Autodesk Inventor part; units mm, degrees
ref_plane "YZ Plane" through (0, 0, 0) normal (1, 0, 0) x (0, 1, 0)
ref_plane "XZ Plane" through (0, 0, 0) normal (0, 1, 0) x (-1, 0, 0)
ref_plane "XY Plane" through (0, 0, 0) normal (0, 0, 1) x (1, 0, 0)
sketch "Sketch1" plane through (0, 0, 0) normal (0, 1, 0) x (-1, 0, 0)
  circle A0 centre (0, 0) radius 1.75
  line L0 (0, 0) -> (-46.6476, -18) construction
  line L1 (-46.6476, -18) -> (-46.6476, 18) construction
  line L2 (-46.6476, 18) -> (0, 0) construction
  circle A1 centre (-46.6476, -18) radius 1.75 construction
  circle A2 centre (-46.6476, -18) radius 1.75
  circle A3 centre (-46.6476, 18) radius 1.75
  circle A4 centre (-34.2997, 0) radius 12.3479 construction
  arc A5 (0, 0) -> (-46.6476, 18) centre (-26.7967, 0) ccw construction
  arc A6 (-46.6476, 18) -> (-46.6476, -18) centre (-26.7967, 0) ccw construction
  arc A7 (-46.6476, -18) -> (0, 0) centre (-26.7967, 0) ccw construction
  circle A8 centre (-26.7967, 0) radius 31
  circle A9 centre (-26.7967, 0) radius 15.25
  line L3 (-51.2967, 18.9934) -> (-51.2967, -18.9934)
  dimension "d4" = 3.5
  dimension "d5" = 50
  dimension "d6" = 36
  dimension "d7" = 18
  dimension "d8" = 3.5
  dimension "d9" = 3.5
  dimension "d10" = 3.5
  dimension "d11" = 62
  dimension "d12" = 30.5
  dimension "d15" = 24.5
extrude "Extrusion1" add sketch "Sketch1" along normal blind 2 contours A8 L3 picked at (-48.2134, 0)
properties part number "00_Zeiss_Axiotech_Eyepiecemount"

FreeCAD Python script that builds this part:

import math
import FreeCAD as App
import Part
import Sketcher
Q = App.Units.Quantity

doc = App.newDocument("Part")
body = doc.addObject("PartDesign::Body", "Body")

# Sketch on XZ plane
sketch1 = body.newObject("Sketcher::SketchObject", "Sketch")
sketch1.AttachmentSupport = (doc.getObject("XZ_Plane"), [""])
sketch1.MapMode = "FlatFace"
sketch1.addGeometry([
    Part.ArcOfCircle(Part.Circle(App.Vector(26.7967, 0, 0), App.Vector(0, 0, 1), 31), math.radians(37.784304), math.radians(322.215696)),  # 0
    Part.LineSegment(App.Vector(51.2967, -18.9934, 0), App.Vector(51.2967, 18.9934, 0)),  # 1
    Part.Circle(App.Vector(46.6476, -18, 0), App.Vector(0, 0, 1), 1.75),  # 2
    Part.Circle(App.Vector(46.6476, 18, 0), App.Vector(0, 0, 1), 1.75),  # 3
    Part.Circle(App.Vector(26.7967, 0, 0), App.Vector(0, 0, 1), 15.25),  # 4
    Part.Circle(App.Vector(0, 0, 0), App.Vector(0, 0, 1), 1.75),  # 5
], False)
sketch1.addConstraint([
    Sketcher.Constraint("Coincident", 0, 1, 1, 2),
    Sketcher.Constraint("Coincident", 1, 1, 0, 2),
    Sketcher.Constraint("Vertical", 1),
    Sketcher.Constraint("Coincident", 5, 3, -1, 1),
    Sketcher.Constraint("Coincident", 4, 3, 0, 3),
    Sketcher.Constraint("Equal", 2, 3),
    Sketcher.Constraint("Equal", 3, 5),
    Sketcher.Constraint("Symmetric", 2, 3, 3, 3, -1),
    Sketcher.Constraint("PointOnObject", 0, 3, -1),
    Sketcher.Constraint("Radius", 0, Q("31 mm")),
    Sketcher.Constraint("Diameter", 2, Q("3.5 mm")),
    Sketcher.Constraint("Diameter", 4, Q("30.5 mm")),
    Sketcher.Constraint("DistanceY", 2, 3, -1, 1, Q("18 mm")),
    Sketcher.Constraint("DistanceX", 0, 3, 0, 1, Q("24.5 mm")),
    Sketcher.Constraint("DistanceX", 0, 3, 2, 3, Q("19.851 mm")),
    Sketcher.Constraint("DistanceX", -1, 1, 0, 3, Q("26.7967 mm")),
])
pad1 = body.newObject("PartDesign::Pad", "Pad")
pad1.Profile = sketch1
pad1.Length = 2
pad1.Reversed = True

doc.recompute()
